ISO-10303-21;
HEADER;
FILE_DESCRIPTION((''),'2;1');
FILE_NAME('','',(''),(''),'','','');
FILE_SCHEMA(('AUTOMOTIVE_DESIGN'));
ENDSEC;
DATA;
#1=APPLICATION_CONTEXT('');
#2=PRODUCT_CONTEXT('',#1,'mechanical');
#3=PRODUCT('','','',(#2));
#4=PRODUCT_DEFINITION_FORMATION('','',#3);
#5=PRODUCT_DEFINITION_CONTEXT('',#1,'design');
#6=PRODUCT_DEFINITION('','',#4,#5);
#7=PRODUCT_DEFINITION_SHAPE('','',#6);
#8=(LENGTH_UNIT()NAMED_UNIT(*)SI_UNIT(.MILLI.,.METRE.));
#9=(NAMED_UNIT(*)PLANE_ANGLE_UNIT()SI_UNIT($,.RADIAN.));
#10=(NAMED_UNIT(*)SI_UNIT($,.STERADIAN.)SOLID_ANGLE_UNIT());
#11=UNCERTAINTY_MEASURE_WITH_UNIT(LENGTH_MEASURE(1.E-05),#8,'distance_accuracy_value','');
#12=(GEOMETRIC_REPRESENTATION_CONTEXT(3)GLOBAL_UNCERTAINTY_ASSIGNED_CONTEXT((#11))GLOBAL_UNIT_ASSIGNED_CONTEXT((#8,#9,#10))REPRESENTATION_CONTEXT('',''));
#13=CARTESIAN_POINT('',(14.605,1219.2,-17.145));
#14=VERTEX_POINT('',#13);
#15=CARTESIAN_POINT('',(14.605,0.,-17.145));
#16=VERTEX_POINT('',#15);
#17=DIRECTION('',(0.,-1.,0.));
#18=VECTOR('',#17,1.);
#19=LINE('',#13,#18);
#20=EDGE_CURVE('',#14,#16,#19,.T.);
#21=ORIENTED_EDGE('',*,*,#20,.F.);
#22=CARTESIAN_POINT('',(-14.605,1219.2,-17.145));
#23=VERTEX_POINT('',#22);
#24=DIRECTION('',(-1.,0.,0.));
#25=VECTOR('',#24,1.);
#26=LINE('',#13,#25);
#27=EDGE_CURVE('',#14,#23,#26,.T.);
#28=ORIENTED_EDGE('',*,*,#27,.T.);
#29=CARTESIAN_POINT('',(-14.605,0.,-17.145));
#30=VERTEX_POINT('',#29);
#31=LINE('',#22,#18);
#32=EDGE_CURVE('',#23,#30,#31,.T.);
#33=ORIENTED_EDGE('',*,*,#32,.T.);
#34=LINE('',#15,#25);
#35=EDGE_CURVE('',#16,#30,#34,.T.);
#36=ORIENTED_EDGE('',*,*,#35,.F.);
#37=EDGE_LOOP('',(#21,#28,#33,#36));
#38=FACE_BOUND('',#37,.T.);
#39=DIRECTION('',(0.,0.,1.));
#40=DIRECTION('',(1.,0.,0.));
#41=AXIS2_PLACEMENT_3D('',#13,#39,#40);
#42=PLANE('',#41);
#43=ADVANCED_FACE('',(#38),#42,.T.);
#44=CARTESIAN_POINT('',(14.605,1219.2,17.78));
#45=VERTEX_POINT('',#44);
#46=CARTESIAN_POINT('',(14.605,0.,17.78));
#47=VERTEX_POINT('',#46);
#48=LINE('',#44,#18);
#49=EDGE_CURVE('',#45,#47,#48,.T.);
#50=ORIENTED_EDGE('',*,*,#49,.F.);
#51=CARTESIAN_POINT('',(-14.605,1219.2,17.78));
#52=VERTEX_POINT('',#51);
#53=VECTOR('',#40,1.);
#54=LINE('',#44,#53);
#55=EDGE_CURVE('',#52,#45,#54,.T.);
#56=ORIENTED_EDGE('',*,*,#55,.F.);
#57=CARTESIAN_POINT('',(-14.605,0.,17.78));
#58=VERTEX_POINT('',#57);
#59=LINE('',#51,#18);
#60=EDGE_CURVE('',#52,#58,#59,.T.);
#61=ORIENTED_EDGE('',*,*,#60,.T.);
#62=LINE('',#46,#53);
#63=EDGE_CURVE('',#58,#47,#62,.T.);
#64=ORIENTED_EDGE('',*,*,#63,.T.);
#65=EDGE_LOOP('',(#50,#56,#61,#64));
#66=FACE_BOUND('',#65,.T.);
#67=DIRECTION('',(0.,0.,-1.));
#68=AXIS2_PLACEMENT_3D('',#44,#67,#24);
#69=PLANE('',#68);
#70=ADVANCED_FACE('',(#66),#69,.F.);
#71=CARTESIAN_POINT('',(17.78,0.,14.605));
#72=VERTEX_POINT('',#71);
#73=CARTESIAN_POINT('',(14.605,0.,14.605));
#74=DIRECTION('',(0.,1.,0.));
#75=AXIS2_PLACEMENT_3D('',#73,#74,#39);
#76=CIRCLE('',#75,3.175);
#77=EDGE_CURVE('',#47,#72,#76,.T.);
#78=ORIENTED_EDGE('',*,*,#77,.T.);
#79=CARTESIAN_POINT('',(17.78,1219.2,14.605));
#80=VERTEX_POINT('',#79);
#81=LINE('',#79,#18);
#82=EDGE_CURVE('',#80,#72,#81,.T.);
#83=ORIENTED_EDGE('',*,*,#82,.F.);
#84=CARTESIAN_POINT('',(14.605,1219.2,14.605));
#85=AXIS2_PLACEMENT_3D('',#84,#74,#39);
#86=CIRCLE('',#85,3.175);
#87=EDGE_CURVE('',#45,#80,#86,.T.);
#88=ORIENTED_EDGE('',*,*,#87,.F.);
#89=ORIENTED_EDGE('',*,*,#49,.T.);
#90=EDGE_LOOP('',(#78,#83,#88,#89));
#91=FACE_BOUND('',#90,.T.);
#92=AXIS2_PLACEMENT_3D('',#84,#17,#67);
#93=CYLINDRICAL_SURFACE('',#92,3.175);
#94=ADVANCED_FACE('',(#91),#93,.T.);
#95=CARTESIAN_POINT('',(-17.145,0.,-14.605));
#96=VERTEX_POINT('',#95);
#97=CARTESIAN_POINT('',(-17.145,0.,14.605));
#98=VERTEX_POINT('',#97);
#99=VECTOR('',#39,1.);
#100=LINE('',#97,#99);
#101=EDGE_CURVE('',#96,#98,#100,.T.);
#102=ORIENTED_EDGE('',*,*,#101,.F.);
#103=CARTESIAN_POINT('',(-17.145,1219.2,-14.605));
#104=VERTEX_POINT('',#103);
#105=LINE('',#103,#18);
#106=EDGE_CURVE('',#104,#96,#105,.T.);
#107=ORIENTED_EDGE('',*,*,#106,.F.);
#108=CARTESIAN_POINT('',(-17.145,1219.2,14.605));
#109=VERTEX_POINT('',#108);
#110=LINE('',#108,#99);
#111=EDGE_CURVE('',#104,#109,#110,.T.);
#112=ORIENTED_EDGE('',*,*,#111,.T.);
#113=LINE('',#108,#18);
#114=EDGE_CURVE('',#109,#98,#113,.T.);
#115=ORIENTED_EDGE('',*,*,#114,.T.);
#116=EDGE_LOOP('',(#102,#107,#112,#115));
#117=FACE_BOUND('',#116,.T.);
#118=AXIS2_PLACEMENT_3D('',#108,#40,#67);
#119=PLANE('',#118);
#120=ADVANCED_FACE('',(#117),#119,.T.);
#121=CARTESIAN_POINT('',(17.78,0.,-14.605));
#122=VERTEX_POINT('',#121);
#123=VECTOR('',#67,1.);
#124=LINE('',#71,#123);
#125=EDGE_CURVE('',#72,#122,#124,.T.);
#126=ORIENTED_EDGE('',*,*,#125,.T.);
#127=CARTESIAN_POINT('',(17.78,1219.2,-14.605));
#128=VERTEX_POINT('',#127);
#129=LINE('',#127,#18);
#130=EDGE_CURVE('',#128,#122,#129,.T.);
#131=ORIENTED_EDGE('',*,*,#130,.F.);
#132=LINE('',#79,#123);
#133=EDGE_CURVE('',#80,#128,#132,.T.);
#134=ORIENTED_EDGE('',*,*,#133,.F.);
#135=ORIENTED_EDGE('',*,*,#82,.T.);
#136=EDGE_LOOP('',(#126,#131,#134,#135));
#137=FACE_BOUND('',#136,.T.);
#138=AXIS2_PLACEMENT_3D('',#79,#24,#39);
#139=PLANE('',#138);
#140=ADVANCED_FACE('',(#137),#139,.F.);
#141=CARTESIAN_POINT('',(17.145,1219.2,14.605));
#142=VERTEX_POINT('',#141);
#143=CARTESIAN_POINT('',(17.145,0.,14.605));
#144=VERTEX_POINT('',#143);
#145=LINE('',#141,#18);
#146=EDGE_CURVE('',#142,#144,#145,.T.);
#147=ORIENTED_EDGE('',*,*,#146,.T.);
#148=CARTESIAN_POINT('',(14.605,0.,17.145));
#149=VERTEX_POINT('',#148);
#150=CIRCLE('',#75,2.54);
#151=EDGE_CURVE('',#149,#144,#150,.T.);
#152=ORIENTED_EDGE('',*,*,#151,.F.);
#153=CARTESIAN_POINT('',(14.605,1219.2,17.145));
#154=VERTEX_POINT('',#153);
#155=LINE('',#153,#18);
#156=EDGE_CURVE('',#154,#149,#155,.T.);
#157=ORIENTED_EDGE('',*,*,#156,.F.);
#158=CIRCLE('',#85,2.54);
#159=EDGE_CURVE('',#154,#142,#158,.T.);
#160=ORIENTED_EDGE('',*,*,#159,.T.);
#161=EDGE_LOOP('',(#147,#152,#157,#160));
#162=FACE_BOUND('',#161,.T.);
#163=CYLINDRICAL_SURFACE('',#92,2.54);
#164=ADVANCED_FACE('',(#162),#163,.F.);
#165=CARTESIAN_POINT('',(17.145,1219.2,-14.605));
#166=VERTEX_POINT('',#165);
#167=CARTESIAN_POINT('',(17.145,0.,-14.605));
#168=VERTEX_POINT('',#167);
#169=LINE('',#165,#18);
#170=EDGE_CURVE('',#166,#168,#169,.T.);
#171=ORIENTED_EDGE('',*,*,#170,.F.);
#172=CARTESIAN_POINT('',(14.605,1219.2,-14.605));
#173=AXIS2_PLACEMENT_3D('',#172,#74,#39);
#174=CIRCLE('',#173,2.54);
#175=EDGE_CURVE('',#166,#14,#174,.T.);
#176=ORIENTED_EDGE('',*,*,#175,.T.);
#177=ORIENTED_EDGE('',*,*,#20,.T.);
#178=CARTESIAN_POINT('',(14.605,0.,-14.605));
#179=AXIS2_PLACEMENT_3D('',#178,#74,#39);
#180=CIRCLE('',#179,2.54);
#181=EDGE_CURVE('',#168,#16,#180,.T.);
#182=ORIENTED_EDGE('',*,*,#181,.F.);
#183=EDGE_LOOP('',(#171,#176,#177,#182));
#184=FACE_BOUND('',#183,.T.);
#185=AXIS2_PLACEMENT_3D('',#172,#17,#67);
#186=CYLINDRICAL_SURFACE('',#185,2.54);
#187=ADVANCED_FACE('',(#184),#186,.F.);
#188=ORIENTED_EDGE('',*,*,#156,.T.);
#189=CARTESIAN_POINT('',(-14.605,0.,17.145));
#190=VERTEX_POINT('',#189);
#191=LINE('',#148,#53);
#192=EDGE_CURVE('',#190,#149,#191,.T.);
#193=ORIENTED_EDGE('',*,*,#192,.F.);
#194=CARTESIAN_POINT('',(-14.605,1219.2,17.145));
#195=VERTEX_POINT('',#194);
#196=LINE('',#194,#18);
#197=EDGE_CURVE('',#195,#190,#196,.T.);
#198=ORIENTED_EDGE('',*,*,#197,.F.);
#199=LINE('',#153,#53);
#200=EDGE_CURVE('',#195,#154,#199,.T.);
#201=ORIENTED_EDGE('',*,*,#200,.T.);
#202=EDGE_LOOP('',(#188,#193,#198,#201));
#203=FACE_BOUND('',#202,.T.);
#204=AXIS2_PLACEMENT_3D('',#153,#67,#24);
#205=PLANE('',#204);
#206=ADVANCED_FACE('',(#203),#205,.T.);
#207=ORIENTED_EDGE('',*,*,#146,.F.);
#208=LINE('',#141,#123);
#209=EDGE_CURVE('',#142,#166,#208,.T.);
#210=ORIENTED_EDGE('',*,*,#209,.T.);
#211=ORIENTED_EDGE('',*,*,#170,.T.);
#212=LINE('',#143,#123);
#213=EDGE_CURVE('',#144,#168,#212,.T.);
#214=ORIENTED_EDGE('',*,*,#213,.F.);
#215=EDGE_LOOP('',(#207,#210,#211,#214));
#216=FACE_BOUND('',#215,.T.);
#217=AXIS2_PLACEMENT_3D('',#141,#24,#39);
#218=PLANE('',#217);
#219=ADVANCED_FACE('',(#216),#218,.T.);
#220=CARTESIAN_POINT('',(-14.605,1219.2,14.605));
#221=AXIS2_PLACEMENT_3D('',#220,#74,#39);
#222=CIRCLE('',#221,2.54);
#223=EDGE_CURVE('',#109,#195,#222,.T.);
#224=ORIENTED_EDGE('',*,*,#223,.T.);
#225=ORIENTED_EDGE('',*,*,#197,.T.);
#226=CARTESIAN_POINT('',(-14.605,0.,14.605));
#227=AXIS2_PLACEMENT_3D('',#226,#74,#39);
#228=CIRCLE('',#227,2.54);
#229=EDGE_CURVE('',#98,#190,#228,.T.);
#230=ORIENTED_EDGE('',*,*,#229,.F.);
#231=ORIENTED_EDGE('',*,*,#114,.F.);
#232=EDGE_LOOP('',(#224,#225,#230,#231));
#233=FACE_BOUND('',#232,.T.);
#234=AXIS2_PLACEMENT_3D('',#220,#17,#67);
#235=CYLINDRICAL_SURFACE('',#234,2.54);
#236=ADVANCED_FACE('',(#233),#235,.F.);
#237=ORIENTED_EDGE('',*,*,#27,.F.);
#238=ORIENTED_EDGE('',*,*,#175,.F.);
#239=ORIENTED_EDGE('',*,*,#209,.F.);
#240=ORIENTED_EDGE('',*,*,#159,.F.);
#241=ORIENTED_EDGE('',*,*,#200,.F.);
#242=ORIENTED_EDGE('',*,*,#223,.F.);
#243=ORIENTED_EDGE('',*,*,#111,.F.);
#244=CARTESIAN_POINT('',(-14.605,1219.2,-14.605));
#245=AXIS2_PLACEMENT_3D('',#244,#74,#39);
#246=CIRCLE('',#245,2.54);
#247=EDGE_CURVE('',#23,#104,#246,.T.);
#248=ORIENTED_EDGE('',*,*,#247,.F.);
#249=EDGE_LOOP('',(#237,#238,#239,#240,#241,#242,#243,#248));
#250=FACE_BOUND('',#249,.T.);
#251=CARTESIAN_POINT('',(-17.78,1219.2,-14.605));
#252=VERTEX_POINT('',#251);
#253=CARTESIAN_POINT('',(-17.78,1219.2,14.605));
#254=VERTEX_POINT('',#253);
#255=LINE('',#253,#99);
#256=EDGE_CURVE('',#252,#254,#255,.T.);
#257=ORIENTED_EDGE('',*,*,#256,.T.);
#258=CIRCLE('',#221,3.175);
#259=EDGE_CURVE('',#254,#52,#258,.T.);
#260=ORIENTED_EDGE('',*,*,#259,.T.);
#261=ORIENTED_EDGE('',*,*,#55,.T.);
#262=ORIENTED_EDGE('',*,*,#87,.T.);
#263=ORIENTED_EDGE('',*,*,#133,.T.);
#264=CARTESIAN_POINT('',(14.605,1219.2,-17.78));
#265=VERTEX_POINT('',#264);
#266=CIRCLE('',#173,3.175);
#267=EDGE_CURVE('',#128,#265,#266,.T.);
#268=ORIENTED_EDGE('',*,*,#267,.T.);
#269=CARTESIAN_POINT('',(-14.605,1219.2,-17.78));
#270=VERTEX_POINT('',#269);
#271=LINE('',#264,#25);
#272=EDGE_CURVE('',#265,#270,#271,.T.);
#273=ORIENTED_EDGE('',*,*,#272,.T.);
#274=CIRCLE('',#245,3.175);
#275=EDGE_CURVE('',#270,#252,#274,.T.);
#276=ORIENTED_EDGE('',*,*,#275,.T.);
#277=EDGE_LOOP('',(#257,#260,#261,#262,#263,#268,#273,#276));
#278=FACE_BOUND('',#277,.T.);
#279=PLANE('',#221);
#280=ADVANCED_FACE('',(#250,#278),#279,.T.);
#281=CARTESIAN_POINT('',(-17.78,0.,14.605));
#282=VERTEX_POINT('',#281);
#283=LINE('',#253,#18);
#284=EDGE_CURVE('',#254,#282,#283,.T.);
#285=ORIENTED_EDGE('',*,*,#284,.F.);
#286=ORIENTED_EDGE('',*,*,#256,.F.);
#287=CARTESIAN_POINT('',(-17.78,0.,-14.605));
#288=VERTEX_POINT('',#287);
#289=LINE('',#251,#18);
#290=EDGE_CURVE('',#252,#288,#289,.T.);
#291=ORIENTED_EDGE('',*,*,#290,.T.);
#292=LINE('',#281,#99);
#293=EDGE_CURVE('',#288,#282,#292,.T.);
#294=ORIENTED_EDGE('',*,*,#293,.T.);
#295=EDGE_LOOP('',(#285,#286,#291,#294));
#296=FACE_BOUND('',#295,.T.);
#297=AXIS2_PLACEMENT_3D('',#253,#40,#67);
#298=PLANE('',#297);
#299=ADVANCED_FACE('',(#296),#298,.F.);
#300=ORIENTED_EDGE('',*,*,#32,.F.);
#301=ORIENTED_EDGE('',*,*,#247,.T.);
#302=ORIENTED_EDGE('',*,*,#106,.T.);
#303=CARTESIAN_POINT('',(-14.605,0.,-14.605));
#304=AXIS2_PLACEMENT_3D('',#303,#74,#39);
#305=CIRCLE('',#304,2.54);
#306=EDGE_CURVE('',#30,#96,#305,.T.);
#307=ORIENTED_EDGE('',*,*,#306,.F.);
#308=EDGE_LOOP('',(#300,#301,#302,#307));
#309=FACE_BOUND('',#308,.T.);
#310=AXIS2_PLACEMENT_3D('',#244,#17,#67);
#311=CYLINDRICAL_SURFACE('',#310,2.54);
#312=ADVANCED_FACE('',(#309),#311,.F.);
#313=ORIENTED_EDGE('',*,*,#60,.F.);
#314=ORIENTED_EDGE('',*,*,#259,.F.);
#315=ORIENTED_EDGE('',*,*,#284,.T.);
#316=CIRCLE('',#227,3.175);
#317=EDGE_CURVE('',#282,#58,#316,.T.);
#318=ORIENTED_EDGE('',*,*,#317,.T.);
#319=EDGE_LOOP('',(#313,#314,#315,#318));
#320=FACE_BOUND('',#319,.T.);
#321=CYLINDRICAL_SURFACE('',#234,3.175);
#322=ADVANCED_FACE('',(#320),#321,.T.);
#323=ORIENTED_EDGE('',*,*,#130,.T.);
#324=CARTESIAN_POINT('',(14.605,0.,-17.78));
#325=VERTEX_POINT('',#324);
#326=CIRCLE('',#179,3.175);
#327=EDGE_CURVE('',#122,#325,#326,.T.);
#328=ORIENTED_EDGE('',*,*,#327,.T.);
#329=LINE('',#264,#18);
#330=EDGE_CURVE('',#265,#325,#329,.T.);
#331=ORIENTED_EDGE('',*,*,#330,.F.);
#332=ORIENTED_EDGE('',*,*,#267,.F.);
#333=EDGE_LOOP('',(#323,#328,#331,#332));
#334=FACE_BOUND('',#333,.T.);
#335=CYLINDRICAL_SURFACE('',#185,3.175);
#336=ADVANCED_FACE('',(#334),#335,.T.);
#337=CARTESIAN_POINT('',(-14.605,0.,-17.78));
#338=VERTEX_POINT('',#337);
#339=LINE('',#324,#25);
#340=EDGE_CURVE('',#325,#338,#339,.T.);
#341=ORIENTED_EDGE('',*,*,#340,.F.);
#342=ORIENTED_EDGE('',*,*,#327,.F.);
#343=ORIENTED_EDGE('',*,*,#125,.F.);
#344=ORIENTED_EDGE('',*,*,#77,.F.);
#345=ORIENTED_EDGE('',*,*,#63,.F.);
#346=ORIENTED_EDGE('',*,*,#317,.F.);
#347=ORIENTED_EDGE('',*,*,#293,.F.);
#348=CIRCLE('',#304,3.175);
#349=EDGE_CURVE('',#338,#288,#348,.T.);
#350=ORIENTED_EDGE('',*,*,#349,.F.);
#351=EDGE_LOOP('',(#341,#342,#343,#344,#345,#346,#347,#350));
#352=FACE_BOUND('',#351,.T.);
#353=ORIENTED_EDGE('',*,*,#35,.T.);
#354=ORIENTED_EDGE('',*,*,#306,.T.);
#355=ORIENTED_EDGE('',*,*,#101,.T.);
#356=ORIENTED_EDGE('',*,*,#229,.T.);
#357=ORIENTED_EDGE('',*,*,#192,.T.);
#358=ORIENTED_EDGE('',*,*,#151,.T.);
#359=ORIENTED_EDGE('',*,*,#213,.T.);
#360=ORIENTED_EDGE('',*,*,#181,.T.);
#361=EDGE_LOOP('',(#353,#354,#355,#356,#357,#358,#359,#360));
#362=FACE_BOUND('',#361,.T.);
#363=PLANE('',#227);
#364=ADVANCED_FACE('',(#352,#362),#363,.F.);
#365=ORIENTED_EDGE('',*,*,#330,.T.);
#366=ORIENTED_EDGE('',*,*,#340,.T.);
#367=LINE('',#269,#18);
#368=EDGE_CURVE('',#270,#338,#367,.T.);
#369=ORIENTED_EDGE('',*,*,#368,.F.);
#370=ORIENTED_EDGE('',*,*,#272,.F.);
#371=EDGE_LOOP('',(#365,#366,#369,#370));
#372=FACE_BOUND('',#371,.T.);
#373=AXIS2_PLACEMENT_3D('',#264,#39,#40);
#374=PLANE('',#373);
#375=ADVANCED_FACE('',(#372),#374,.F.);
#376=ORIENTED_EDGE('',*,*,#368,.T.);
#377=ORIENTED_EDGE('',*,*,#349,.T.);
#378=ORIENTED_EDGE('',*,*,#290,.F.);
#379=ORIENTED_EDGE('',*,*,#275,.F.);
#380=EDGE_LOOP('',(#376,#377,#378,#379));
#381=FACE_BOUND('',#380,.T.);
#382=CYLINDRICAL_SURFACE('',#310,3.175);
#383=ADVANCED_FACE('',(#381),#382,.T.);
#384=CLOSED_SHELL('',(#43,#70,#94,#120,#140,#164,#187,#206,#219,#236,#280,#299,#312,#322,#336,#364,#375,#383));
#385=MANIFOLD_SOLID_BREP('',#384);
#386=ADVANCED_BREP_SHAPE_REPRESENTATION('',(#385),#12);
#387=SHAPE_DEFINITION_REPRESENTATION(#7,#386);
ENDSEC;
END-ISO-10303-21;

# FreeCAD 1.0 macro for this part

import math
import FreeCAD as App
import Part
import Sketcher
Q = App.Units.Quantity

doc = App.newDocument("Part")
params = doc.addObject("Spreadsheet::Sheet", "Params")
for row, (alias, value) in enumerate([
    ("sketch1_radius", "0.1 in"),
    ("sketch1_radius2", "0.125 in"),
    ("sketch1_width", "1.15 in"),
    ("pad1_length", "48 in"),
], start=1):
    params.set(f"A{row}", alias)
    params.set(f"B{row}", "=" + value)
    params.setAlias(f"B{row}", alias)

body = doc.addObject("PartDesign::Body", "Body")

sketch1 = body.newObject("Sketcher::SketchObject", "Sketch")
sketch1.AttachmentSupport = (doc.getObject("XZ_Plane"), [""])
sketch1.MapMode = "FlatFace"
sketch1.addGeometry([
    Part.LineSegment(App.Vector(-14.6, 17.8, 0), App.Vector(14.6, 17.8, 0)),
    Part.ArcOfCircle(Part.Circle(App.Vector(14.6, 14.6, 0), App.Vector(0, 0, 1), 3.2), math.radians(0), math.radians(90)),
    Part.LineSegment(App.Vector(17.8, 14.6, 0), App.Vector(17.8, -14.6, 0)),
    Part.ArcOfCircle(Part.Circle(App.Vector(14.6, -14.6, 0), App.Vector(0, 0, 1), 3.2), math.radians(-90), math.radians(0)),
    Part.LineSegment(App.Vector(14.6, -17.8, 0), App.Vector(-14.6, -17.8, 0)),
    Part.ArcOfCircle(Part.Circle(App.Vector(-14.6, -14.6, 0), App.Vector(0, 0, 1), 3.2), math.radians(-180), math.radians(-90)),
    Part.LineSegment(App.Vector(-17.8, -14.6, 0), App.Vector(-17.8, 14.6, 0)),
    Part.ArcOfCircle(Part.Circle(App.Vector(-14.6, 14.6, 0), App.Vector(0, 0, 1), 3.2), math.radians(90), math.radians(180)),
    Part.ArcOfCircle(Part.Circle(App.Vector(14.6, -14.6, 0), App.Vector(0, 0, 1), 2.5), math.radians(-90), math.radians(0)),
    Part.LineSegment(App.Vector(17.1, -14.6, 0), App.Vector(17.1, 14.6, 0)),
    Part.ArcOfCircle(Part.Circle(App.Vector(14.6, 14.6, 0), App.Vector(0, 0, 1), 2.5), math.radians(0), math.radians(90)),
    Part.LineSegment(App.Vector(14.6, 17.1, 0), App.Vector(-14.6, 17.1, 0)),
    Part.ArcOfCircle(Part.Circle(App.Vector(-14.6, 14.6, 0), App.Vector(0, 0, 1), 2.5), math.radians(90), math.radians(180)),
    Part.LineSegment(App.Vector(-17.1, 14.6, 0), App.Vector(-17.1, -14.6, 0)),
    Part.ArcOfCircle(Part.Circle(App.Vector(-14.6, -14.6, 0), App.Vector(0, 0, 1), 2.5), math.radians(-180), math.radians(-90)),
    Part.LineSegment(App.Vector(-14.6, -17.1, 0), App.Vector(14.6, -17.1, 0)),
], False)
sketch1.addConstraint([
    Sketcher.Constraint("Tangent", 0, 2, 1, 2),
    Sketcher.Constraint("Tangent", 1, 1, 2, 1),
    Sketcher.Constraint("Tangent", 2, 2, 3, 2),
    Sketcher.Constraint("Tangent", 3, 1, 4, 1),
    Sketcher.Constraint("Tangent", 4, 2, 5, 2),
    Sketcher.Constraint("Tangent", 5, 1, 6, 1),
    Sketcher.Constraint("Tangent", 6, 2, 7, 2),
    Sketcher.Constraint("Tangent", 7, 1, 0, 1),
    Sketcher.Constraint("Tangent", 8, 2, 9, 1),
    Sketcher.Constraint("Tangent", 9, 2, 10, 1),
    Sketcher.Constraint("Tangent", 10, 2, 11, 1),
    Sketcher.Constraint("Tangent", 11, 2, 12, 1),
    Sketcher.Constraint("Tangent", 12, 2, 13, 1),
    Sketcher.Constraint("Tangent", 13, 2, 14, 1),
    Sketcher.Constraint("Tangent", 14, 2, 15, 1),
    Sketcher.Constraint("Tangent", 15, 2, 8, 1),
    Sketcher.Constraint("Horizontal", 0),
    Sketcher.Constraint("Vertical", 2),
    Sketcher.Constraint("Horizontal", 4),
    Sketcher.Constraint("Vertical", 6),
    Sketcher.Constraint("Vertical", 9),
    Sketcher.Constraint("Horizontal", 11),
    Sketcher.Constraint("Vertical", 13),
    Sketcher.Constraint("Horizontal", 15),
    Sketcher.Constraint("Coincident", 8, 3, 3, 3),
    Sketcher.Constraint("Coincident", 10, 3, 1, 3),
    Sketcher.Constraint("Coincident", 12, 3, 7, 3),
    Sketcher.Constraint("Equal", 1, 3),
    Sketcher.Constraint("Equal", 3, 5),
    Sketcher.Constraint("Equal", 5, 7),
    Sketcher.Constraint("Equal", 12, 14),
    Sketcher.Constraint("Symmetric", 1, 3, 5, 3, -1, 1),
    Sketcher.Constraint("Equal", 15, 2),
    Sketcher.Constraint("Radius", 8, Q("0.1 in")),
    Sketcher.Constraint("Radius", 1, Q("0.125 in")),
    Sketcher.Constraint("DistanceX", 0, 1, 0, 2, Q("1.15 in")),
])
sketch1.setExpression("Constraints[33]", "Params.sketch1_radius")
sketch1.setExpression("Constraints[34]", "Params.sketch1_radius2")
sketch1.setExpression("Constraints[35]", "Params.sketch1_width")
pad1 = body.newObject("PartDesign::Pad", "Pad")
pad1.Profile = sketch1
pad1.setExpression("Length", "Params.pad1_length")
pad1.Reversed = True

doc.recompute()
